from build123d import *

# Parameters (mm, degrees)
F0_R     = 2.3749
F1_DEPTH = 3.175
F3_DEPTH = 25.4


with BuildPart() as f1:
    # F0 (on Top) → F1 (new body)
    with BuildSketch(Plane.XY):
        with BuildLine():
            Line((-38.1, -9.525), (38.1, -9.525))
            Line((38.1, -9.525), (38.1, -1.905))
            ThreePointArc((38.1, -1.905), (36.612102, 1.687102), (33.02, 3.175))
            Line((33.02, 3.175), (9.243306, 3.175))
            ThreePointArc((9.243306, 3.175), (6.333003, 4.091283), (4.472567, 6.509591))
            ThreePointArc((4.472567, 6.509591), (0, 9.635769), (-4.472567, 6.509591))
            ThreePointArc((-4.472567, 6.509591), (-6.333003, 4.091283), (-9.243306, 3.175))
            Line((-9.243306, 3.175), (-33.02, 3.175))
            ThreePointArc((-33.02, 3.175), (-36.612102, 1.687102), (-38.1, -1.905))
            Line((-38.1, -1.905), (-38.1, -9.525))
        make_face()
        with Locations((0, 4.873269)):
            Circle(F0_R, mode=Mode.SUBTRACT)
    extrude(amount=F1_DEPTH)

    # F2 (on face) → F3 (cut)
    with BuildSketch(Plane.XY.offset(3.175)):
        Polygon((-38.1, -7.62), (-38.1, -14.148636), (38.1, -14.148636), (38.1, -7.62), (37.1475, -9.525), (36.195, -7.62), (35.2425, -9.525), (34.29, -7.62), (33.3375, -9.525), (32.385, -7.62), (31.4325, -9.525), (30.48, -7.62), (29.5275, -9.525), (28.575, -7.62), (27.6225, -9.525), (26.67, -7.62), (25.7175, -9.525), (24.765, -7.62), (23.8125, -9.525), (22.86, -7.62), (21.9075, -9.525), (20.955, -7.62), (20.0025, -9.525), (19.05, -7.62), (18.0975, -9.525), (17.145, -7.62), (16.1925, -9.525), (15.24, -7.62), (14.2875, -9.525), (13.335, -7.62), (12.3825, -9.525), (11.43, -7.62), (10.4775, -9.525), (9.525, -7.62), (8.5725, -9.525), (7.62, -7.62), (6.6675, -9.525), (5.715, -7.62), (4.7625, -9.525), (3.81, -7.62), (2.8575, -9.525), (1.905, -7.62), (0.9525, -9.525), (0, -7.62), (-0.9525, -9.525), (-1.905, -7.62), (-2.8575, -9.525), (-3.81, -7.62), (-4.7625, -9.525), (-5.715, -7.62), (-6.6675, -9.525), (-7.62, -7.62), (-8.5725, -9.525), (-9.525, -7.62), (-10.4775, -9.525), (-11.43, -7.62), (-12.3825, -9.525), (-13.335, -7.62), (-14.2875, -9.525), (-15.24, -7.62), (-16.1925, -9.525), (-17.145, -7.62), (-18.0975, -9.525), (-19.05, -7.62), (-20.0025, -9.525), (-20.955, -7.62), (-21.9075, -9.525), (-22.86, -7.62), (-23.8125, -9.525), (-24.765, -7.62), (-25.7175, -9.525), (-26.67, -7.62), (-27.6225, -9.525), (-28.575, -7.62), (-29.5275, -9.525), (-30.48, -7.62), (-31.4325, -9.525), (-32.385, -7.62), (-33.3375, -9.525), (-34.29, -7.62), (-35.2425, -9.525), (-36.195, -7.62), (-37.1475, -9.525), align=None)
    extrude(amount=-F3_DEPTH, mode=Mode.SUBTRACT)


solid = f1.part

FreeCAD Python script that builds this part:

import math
import FreeCAD as App
import Part
import Sketcher

V = App.Vector
Q = App.Units.Quantity

doc = App.newDocument("Part")
body = doc.addObject("PartDesign::Body", "Body")

sketch1 = body.newObject("Sketcher::SketchObject", "Sketch")
sketch1.AttachmentSupport = (doc.getObject("XY_Plane"), [""])
sketch1.MapMode = "FlatFace"
sketch1.addGeometry([
    Part.LineSegment(V(-38.1, -9.5, 0), V(38.1, -9.5, 0)),
    Part.LineSegment(V(38.1, -9.5, 0), V(38.1, -1.9, 0)),
    Part.ArcOfCircle(Part.Circle(V(33, -1.9, 0), V(0, 0, 1), 5.1), math.radians(0), math.radians(90)),
    Part.LineSegment(V(33, 3.2, 0), V(9.2, 3.2, 0)),
    Part.ArcOfCircle(Part.Circle(V(9.2, 8.3, 0), V(0, 0, 1), 5.1), math.radians(-160), math.radians(-90)),
    Part.ArcOfCircle(Part.Circle(V(0, 4.9, 0), V(0, 0, 1), 4.8), math.radians(20), math.radians(160)),
    Part.ArcOfCircle(Part.Circle(V(-9.2, 8.3, 0), V(0, 0, 1), 5.1), math.radians(-90), math.radians(-20)),
    Part.LineSegment(V(-9.2, 3.2, 0), V(-33, 3.2, 0)),
    Part.ArcOfCircle(Part.Circle(V(-33, -1.9, 0), V(0, 0, 1), 5.1), math.radians(90), math.radians(180)),
    Part.LineSegment(V(-38.1, -1.9, 0), V(-38.1, -9.5, 0)),
    Part.Circle(V(0, 4.9, 0), V(0, 0, 1), 2.4),
], False)
sketch1.addConstraint([
    Sketcher.Constraint("Coincident", 0, 2, 1, 1),
    Sketcher.Constraint("Tangent", 1, 2, 2, 1),
    Sketcher.Constraint("Tangent", 2, 2, 3, 1),
    Sketcher.Constraint("Tangent", 3, 2, 4, 2),
    Sketcher.Constraint("Tangent", 4, 1, 5, 1),
    Sketcher.Constraint("Tangent", 5, 2, 6, 2),
    Sketcher.Constraint("Tangent", 6, 1, 7, 1),
    Sketcher.Constraint("Tangent", 7, 2, 8, 1),
    Sketcher.Constraint("Tangent", 8, 2, 9, 1),
    Sketcher.Constraint("Coincident", 9, 2, 0, 1),
    Sketcher.Constraint("Horizontal", 0),
    Sketcher.Constraint("Vertical", 1),
    Sketcher.Constraint("Horizontal", 3),
    Sketcher.Constraint("Horizontal", 7),
    Sketcher.Constraint("Vertical", 9),
    Sketcher.Constraint("Coincident", 10, 3, 5, 3),
    Sketcher.Constraint("Equal", 2, 4),
    Sketcher.Constraint("Equal", 4, 6),
    Sketcher.Constraint("Equal", 6, 8),
    Sketcher.Constraint("Symmetric", 4, 3, 6, 3, -2),
    Sketcher.Constraint("Equal", 3, 7),
    Sketcher.Constraint("Radius", 2, Q("0.2000001 in")),
    Sketcher.Constraint("DistanceX", 0, 1, 0, 2, Q("3 in")),
    Sketcher.Constraint("Diameter", 10, Q("0.187 in")),
    Sketcher.Constraint("DistanceY", 1, 1, 1, 2, Q("0.3 in")),
    Sketcher.Constraint("Radius", 5, Q("0.1875 in")),
    Sketcher.Constraint("DistanceY", 2, 3, -1, 1, Q("0.0750001 in")),
    Sketcher.Constraint("DistanceX", 3, 2, 3, 1, 23.776694),
])
pad1 = body.newObject("PartDesign::Pad", "Pad")
pad1.Profile = sketch1
pad1.Length = Q("0.125 in")

sketch2 = body.newObject("Sketcher::SketchObject", "Sketch001")
sketch2.AttachmentSupport = (doc.getObject("XY_Plane"), [""])
sketch2.MapMode = "FlatFace"
sketch2.AttachmentOffset = App.Placement(V(0, 0, 0.125 * 25.4), App.Rotation())
sketch2.addGeometry([
    Part.LineSegment(V(-38.1, -7.6, 0), V(-38.1, -14.1, 0)),
    Part.LineSegment(V(-38.1, -14.1, 0), V(38.1, -14.1, 0)),
    Part.LineSegment(V(38.1, -14.1, 0), V(38.1, -7.6, 0)),
    Part.LineSegment(V(38.1, -7.6, 0), V(37.1, -9.5, 0)),
    Part.LineSegment(V(37.1, -9.5, 0), V(36.2, -7.6, 0)),
    Part.LineSegment(V(36.2, -7.6, 0), V(35.2, -9.5, 0)),
    Part.LineSegment(V(35.2, -9.5, 0), V(34.3, -7.6, 0)),
    Part.LineSegment(V(34.3, -7.6, 0), V(33.3, -9.5, 0)),
    Part.LineSegment(V(33.3, -9.5, 0), V(32.4, -7.6, 0)),
    Part.LineSegment(V(32.4, -7.6, 0), V(31.4, -9.5, 0)),
    Part.LineSegment(V(31.4, -9.5, 0), V(30.5, -7.6, 0)),
    Part.LineSegment(V(30.5, -7.6, 0), V(29.5, -9.5, 0)),
    Part.LineSegment(V(29.5, -9.5, 0), V(28.6, -7.6, 0)),
    Part.LineSegment(V(28.6, -7.6, 0), V(27.6, -9.5, 0)),
    Part.LineSegment(V(27.6, -9.5, 0), V(26.7, -7.6, 0)),
    Part.LineSegment(V(26.7, -7.6, 0), V(25.7, -9.5, 0)),
    Part.LineSegment(V(25.7, -9.5, 0), V(24.8, -7.6, 0)),
    Part.LineSegment(V(24.8, -7.6, 0), V(23.8, -9.5, 0)),
    Part.LineSegment(V(23.8, -9.5, 0), V(22.9, -7.6, 0)),
    Part.LineSegment(V(22.9, -7.6, 0), V(21.9, -9.5, 0)),
    Part.LineSegment(V(21.9, -9.5, 0), V(21, -7.6, 0)),
    Part.LineSegment(V(21, -7.6, 0), V(20, -9.5, 0)),
    Part.LineSegment(V(20, -9.5, 0), V(19.1, -7.6, 0)),
    Part.LineSegment(V(19.1, -7.6, 0), V(18.1, -9.5, 0)),
    Part.LineSegment(V(18.1, -9.5, 0), V(17.1, -7.6, 0)),
    Part.LineSegment(V(17.1, -7.6, 0), V(16.2, -9.5, 0)),
    Part.LineSegment(V(16.2, -9.5, 0), V(15.2, -7.6, 0)),
    Part.LineSegment(V(15.2, -7.6, 0), V(14.3, -9.5, 0)),
    Part.LineSegment(V(14.3, -9.5, 0), V(13.3, -7.6, 0)),
    Part.LineSegment(V(13.3, -7.6, 0), V(12.4, -9.5, 0)),
    Part.LineSegment(V(12.4, -9.5, 0), V(11.4, -7.6, 0)),
    Part.LineSegment(V(11.4, -7.6, 0), V(10.5, -9.5, 0)),
    Part.LineSegment(V(10.5, -9.5, 0), V(9.5, -7.6, 0)),
    Part.LineSegment(V(9.5, -7.6, 0), V(8.6, -9.5, 0)),
    Part.LineSegment(V(8.6, -9.5, 0), V(7.6, -7.6, 0)),
    Part.LineSegment(V(7.6, -7.6, 0), V(6.7, -9.5, 0)),
    Part.LineSegment(V(6.7, -9.5, 0), V(5.7, -7.6, 0)),
    Part.LineSegment(V(5.7, -7.6, 0), V(4.8, -9.5, 0)),
    Part.LineSegment(V(4.8, -9.5, 0), V(3.8, -7.6, 0)),
    Part.LineSegment(V(3.8, -7.6, 0), V(2.9, -9.5, 0)),
    Part.LineSegment(V(2.9, -9.5, 0), V(1.9, -7.6, 0)),
    Part.LineSegment(V(1.9, -7.6, 0), V(1, -9.5, 0)),
    Part.LineSegment(V(1, -9.5, 0), V(0, -7.6, 0)),
    Part.LineSegment(V(0, -7.6, 0), V(-1, -9.5, 0)),
    Part.LineSegment(V(-1, -9.5, 0), V(-1.9, -7.6, 0)),
    Part.LineSegment(V(-1.9, -7.6, 0), V(-2.9, -9.5, 0)),
    Part.LineSegment(V(-2.9, -9.5, 0), V(-3.8, -7.6, 0)),
    Part.LineSegment(V(-3.8, -7.6, 0), V(-4.8, -9.5, 0)),
    Part.LineSegment(V(-4.8, -9.5, 0), V(-5.7, -7.6, 0)),
    Part.LineSegment(V(-5.7, -7.6, 0), V(-6.7, -9.5, 0)),
    Part.LineSegment(V(-6.7, -9.5, 0), V(-7.6, -7.6, 0)),
    Part.LineSegment(V(-7.6, -7.6, 0), V(-8.6, -9.5, 0)),
    Part.LineSegment(V(-8.6, -9.5, 0), V(-9.5, -7.6, 0)),
    Part.LineSegment(V(-9.5, -7.6, 0), V(-10.5, -9.5, 0)),
    Part.LineSegment(V(-10.5, -9.5, 0), V(-11.4, -7.6, 0)),
    Part.LineSegment(V(-11.4, -7.6, 0), V(-12.4, -9.5, 0)),
    Part.LineSegment(V(-12.4, -9.5, 0), V(-13.3, -7.6, 0)),
    Part.LineSegment(V(-13.3, -7.6, 0), V(-14.3, -9.5, 0)),
    Part.LineSegment(V(-14.3, -9.5, 0), V(-15.2, -7.6, 0)),
    Part.LineSegment(V(-15.2, -7.6, 0), V(-16.2, -9.5, 0)),
    Part.LineSegment(V(-16.2, -9.5, 0), V(-17.1, -7.6, 0)),
    Part.LineSegment(V(-17.1, -7.6, 0), V(-18.1, -9.5, 0)),
    Part.LineSegment(V(-18.1, -9.5, 0), V(-19.1, -7.6, 0)),
    Part.LineSegment(V(-19.1, -7.6, 0), V(-20, -9.5, 0)),
    Part.LineSegment(V(-20, -9.5, 0), V(-21, -7.6, 0)),
    Part.LineSegment(V(-21, -7.6, 0), V(-21.9, -9.5, 0)),
    Part.LineSegment(V(-21.9, -9.5, 0), V(-22.9, -7.6, 0)),
    Part.LineSegment(V(-22.9, -7.6, 0), V(-23.8, -9.5, 0)),
    Part.LineSegment(V(-23.8, -9.5, 0), V(-24.8, -7.6, 0)),
    Part.LineSegment(V(-24.8, -7.6, 0), V(-25.7, -9.5, 0)),
    Part.LineSegment(V(-25.7, -9.5, 0), V(-26.7, -7.6, 0)),
    Part.LineSegment(V(-26.7, -7.6, 0), V(-27.6, -9.5, 0)),
    Part.LineSegment(V(-27.6, -9.5, 0), V(-28.6, -7.6, 0)),
    Part.LineSegment(V(-28.6, -7.6, 0), V(-29.5, -9.5, 0)),
    Part.LineSegment(V(-29.5, -9.5, 0), V(-30.5, -7.6, 0)),
    Part.LineSegment(V(-30.5, -7.6, 0), V(-31.4, -9.5, 0)),
    Part.LineSegment(V(-31.4, -9.5, 0), V(-32.4, -7.6, 0)),
    Part.LineSegment(V(-32.4, -7.6, 0), V(-33.3, -9.5, 0)),
    Part.LineSegment(V(-33.3, -9.5, 0), V(-34.3, -7.6, 0)),
    Part.LineSegment(V(-34.3, -7.6, 0), V(-35.2, -9.5, 0)),
    Part.LineSegment(V(-35.2, -9.5, 0), V(-36.2, -7.6, 0)),
    Part.LineSegment(V(-36.2, -7.6, 0), V(-37.1, -9.5, 0)),
    Part.LineSegment(V(-37.1, -9.5, 0), V(-38.1, -7.6, 0)),
], False)
sketch2.addConstraint([
    Sketcher.Constraint("Coincident", 0, 2, 1, 1),
    Sketcher.Constraint("Coincident", 1, 2, 2, 1),
    Sketcher.Constraint("Coincident", 2, 2, 3, 1),
    Sketcher.Constraint("Coincident", 3, 2, 4, 1),
    Sketcher.Constraint("Coincident", 4, 2, 5, 1),
    Sketcher.Constraint("Coincident", 5, 2, 6, 1),
    Sketcher.Constraint("Coincident", 6, 2, 7, 1),
    Sketcher.Constraint("Coincident", 7, 2, 8, 1),
    Sketcher.Constraint("Coincident", 8, 2, 9, 1),
    Sketcher.Constraint("Coincident", 9, 2, 10, 1),
    Sketcher.Constraint("Coincident", 10, 2, 11, 1),
    Sketcher.Constraint("Coincident", 11, 2, 12, 1),
    Sketcher.Constraint("Coincident", 12, 2, 13, 1),
    Sketcher.Constraint("Coincident", 13, 2, 14, 1),
    Sketcher.Constraint("Coincident", 14, 2, 15, 1),
    Sketcher.Constraint("Coincident", 15, 2, 16, 1),
    Sketcher.Constraint("Coincident", 16, 2, 17, 1),
    Sketcher.Constraint("Coincident", 17, 2, 18, 1),
    Sketcher.Constraint("Coincident", 18, 2, 19, 1),
    Sketcher.Constraint("Coincident", 19, 2, 20, 1),
    Sketcher.Constraint("Coincident", 20, 2, 21, 1),
    Sketcher.Constraint("Coincident", 21, 2, 22, 1),
    Sketcher.Constraint("Coincident", 22, 2, 23, 1),
    Sketcher.Constraint("Coincident", 23, 2, 24, 1),
    Sketcher.Constraint("Coincident", 24, 2, 25, 1),
    Sketcher.Constraint("Coincident", 25, 2, 26, 1),
    Sketcher.Constraint("Coincident", 26, 2, 27, 1),
    Sketcher.Constraint("Coincident", 27, 2, 28, 1),
    Sketcher.Constraint("Coincident", 28, 2, 29, 1),
    Sketcher.Constraint("Coincident", 29, 2, 30, 1),
    Sketcher.Constraint("Coincident", 30, 2, 31, 1),
    Sketcher.Constraint("Coincident", 31, 2, 32, 1),
    Sketcher.Constraint("Coincident", 32, 2, 33, 1),
    Sketcher.Constraint("Coincident", 33, 2, 34, 1),
    Sketcher.Constraint("Coincident", 34, 2, 35, 1),
    Sketcher.Constraint("Coincident", 35, 2, 36, 1),
    Sketcher.Constraint("Coincident", 36, 2, 37, 1),
    Sketcher.Constraint("Coincident", 37, 2, 38, 1),
    Sketcher.Constraint("Coincident", 38, 2, 39, 1),
    Sketcher.Constraint("Coincident", 39, 2, 40, 1),
    Sketcher.Constraint("Coincident", 40, 2, 41, 1),
    Sketcher.Constraint("Coincident", 41, 2, 42, 1),
    Sketcher.Constraint("Coincident", 42, 2, 43, 1),
    Sketcher.Constraint("Coincident", 43, 2, 44, 1),
    Sketcher.Constraint("Coincident", 44, 2, 45, 1),
    Sketcher.Constraint("Coincident", 45, 2, 46, 1),
    Sketcher.Constraint("Coincident", 46, 2, 47, 1),
    Sketcher.Constraint("Coincident", 47, 2, 48, 1),
    Sketcher.Constraint("Coincident", 48, 2, 49, 1),
    Sketcher.Constraint("Coincident", 49, 2, 50, 1),
    Sketcher.Constraint("Coincident", 50, 2, 51, 1),
    Sketcher.Constraint("Coincident", 51, 2, 52, 1),
    Sketcher.Constraint("Coincident", 52, 2, 53, 1),
    Sketcher.Constraint("Coincident", 53, 2, 54, 1),
    Sketcher.Constraint("Coincident", 54, 2, 55, 1),
    Sketcher.Constraint("Coincident", 55, 2, 56, 1),
    Sketcher.Constraint("Coincident", 56, 2, 57, 1),
    Sketcher.Constraint("Coincident", 57, 2, 58, 1),
    Sketcher.Constraint("Coincident", 58, 2, 59, 1),
    Sketcher.Constraint("Coincident", 59, 2, 60, 1),
    Sketcher.Constraint("Coincident", 60, 2, 61, 1),
    Sketcher.Constraint("Coincident", 61, 2, 62, 1),
    Sketcher.Constraint("Coincident", 62, 2, 63, 1),
    Sketcher.Constraint("Coincident", 63, 2, 64, 1),
    Sketcher.Constraint("Coincident", 64, 2, 65, 1),
    Sketcher.Constraint("Coincident", 65, 2, 66, 1),
    Sketcher.Constraint("Coincident", 66, 2, 67, 1),
    Sketcher.Constraint("Coincident", 67, 2, 68, 1),
    Sketcher.Constraint("Coincident", 68, 2, 69, 1),
    Sketcher.Constraint("Coincident", 69, 2, 70, 1),
    Sketcher.Constraint("Coincident", 70, 2, 71, 1),
    Sketcher.Constraint("Coincident", 71, 2, 72, 1),
    Sketcher.Constraint("Coincident", 72, 2, 73, 1),
    Sketcher.Constraint("Coincident", 73, 2, 74, 1),
    Sketcher.Constraint("Coincident", 74, 2, 75, 1),
    Sketcher.Constraint("Coincident", 75, 2, 76, 1),
    Sketcher.Constraint("Coincident", 76, 2, 77, 1),
    Sketcher.Constraint("Coincident", 77, 2, 78, 1),
    Sketcher.Constraint("Coincident", 78, 2, 79, 1),
    Sketcher.Constraint("Coincident", 79, 2, 80, 1),
    Sketcher.Constraint("Coincident", 80, 2, 81, 1),
    Sketcher.Constraint("Coincident", 81, 2, 82, 1),
    Sketcher.Constraint("Coincident", 82, 2, 0, 1),
    Sketcher.Constraint("Vertical", 0),
    Sketcher.Constraint("Horizontal", 1),
    Sketcher.Constraint("Vertical", 2),
    Sketcher.Constraint("Symmetric", 41, 2, 43, 2, -2),
    Sketcher.Constraint("Symmetric", 40, 2, 44, 2, -2),
    Sketcher.Constraint("Symmetric", 39, 2, 45, 2, -2),
    Sketcher.Constraint("Symmetric", 38, 2, 46, 2, -2),
    Sketcher.Constraint("Symmetric", 37, 2, 47, 2, -2),
    Sketcher.Constraint("Symmetric", 36, 2, 48, 2, -2),
    Sketcher.Constraint("Symmetric", 35, 2, 49, 2, -2),
    Sketcher.Constraint("Symmetric", 34, 2, 50, 2, -2),
    Sketcher.Constraint("Symmetric", 33, 2, 51, 2, -2),
    Sketcher.Constraint("Symmetric", 32, 2, 52, 2, -2),
    Sketcher.Constraint("Symmetric", 31, 2, 53, 2, -2),
    Sketcher.Constraint("Symmetric", 30, 2, 54, 2, -2),
    Sketcher.Constraint("Symmetric", 29, 2, 55, 2, -2),
    Sketcher.Constraint("Symmetric", 28, 2, 56, 2, -2),
    Sketcher.Constraint("Symmetric", 27, 2, 57, 2, -2),
    Sketcher.Constraint("Symmetric", 26, 2, 58, 2, -2),
    Sketcher.Constraint("Symmetric", 25, 2, 59, 2, -2),
    Sketcher.Constraint("Symmetric", 24, 2, 60, 2, -2),
    Sketcher.Constraint("Symmetric", 23, 2, 61, 2, -2),
    Sketcher.Constraint("Symmetric", 22, 2, 62, 2, -2),
    Sketcher.Constraint("Symmetric", 21, 2, 63, 2, -2),
    Sketcher.Constraint("Symmetric", 20, 2, 64, 2, -2),
    Sketcher.Constraint("Symmetric", 19, 2, 65, 2, -2),
    Sketcher.Constraint("Symmetric", 18, 2, 66, 2, -2),
    Sketcher.Constraint("Symmetric", 17, 2, 67, 2, -2),
    Sketcher.Constraint("Symmetric", 16, 2, 68, 2, -2),
    Sketcher.Constraint("Symmetric", 15, 2, 69, 2, -2),
    Sketcher.Constraint("Symmetric", 14, 2, 70, 2, -2),
    Sketcher.Constraint("Symmetric", 13, 2, 71, 2, -2),
    Sketcher.Constraint("Symmetric", 12, 2, 72, 2, -2),
    Sketcher.Constraint("Symmetric", 11, 2, 73, 2, -2),
    Sketcher.Constraint("Symmetric", 10, 2, 74, 2, -2),
    Sketcher.Constraint("Symmetric", 9, 2, 75, 2, -2),
    Sketcher.Constraint("Symmetric", 8, 2, 76, 2, -2),
    Sketcher.Constraint("Symmetric", 7, 2, 77, 2, -2),
    Sketcher.Constraint("Symmetric", 6, 2, 78, 2, -2),
    Sketcher.Constraint("Symmetric", 5, 2, 79, 2, -2),
    Sketcher.Constraint("Symmetric", 4, 2, 80, 2, -2),
    Sketcher.Constraint("Symmetric", 3, 2, 81, 2, -2),
    Sketcher.Constraint("Symmetric", 2, 2, 82, 2, -2),
    Sketcher.Constraint("PointOnObject", 42, 2, -2),
    Sketcher.Constraint("Parallel", 3, 5),
    Sketcher.Constraint("Parallel", 4, 6),
    Sketcher.Constraint("Parallel", 5, 7),
    Sketcher.Constraint("Parallel", 6, 8),
    Sketcher.Constraint("Parallel", 7, 9),
    Sketcher.Constraint("Parallel", 8, 10),
    Sketcher.Constraint("Parallel", 9, 11),
    Sketcher.Constraint("Parallel", 10, 12),
    Sketcher.Constraint("Parallel", 11, 13),
    Sketcher.Constraint("Parallel", 12, 14),
    Sketcher.Constraint("Parallel", 13, 15),
    Sketcher.Constraint("Parallel", 14, 16),
    Sketcher.Constraint("Parallel", 15, 17),
    Sketcher.Constraint("Parallel", 16, 18),
    Sketcher.Constraint("Parallel", 17, 19),
    Sketcher.Constraint("Parallel", 18, 20),
    Sketcher.Constraint("Parallel", 19, 21),
    Sketcher.Constraint("Parallel", 20, 22),
    Sketcher.Constraint("Parallel", 21, 23),
    Sketcher.Constraint("Parallel", 22, 24),
    Sketcher.Constraint("Parallel", 23, 25),
    Sketcher.Constraint("Parallel", 24, 26),
    Sketcher.Constraint("Parallel", 25, 27),
    Sketcher.Constraint("Parallel", 26, 28),
    Sketcher.Constraint("Parallel", 27, 29),
    Sketcher.Constraint("Parallel", 28, 30),
    Sketcher.Constraint("Parallel", 29, 31),
    Sketcher.Constraint("Parallel", 30, 32),
    Sketcher.Constraint("Parallel", 31, 33),
    Sketcher.Constraint("Parallel", 32, 34),
    Sketcher.Constraint("Parallel", 33, 35),
    Sketcher.Constraint("Parallel", 34, 36),
    Sketcher.Constraint("Parallel", 35, 37),
    Sketcher.Constraint("Parallel", 36, 38),
    Sketcher.Constraint("Parallel", 37, 39),
    Sketcher.Constraint("Parallel", 38, 40),
    Sketcher.Constraint("Parallel", 39, 41),
    Sketcher.Constraint("Parallel", 40, 42),
    Sketcher.Constraint("Parallel", 41, 43),
    Sketcher.Constraint("Horizontal", 2, 2, 4, 2),
    Sketcher.Constraint("Horizontal", 3, 2, 5, 2),
    Sketcher.Constraint("Horizontal", 4, 2, 6, 2),
    Sketcher.Constraint("Horizontal", 5, 2, 7, 2),
    Sketcher.Constraint("Horizontal", 6, 2, 8, 2),
    Sketcher.Constraint("Horizontal", 7, 2, 9, 2),
    Sketcher.Constraint("Horizontal", 8, 2, 10, 2),
    Sketcher.Constraint("Horizontal", 9, 2, 11, 2),
    Sketcher.Constraint("Horizontal", 10, 2, 12, 2),
    Sketcher.Constraint("Horizontal", 11, 2, 13, 2),
    Sketcher.Constraint("Horizontal", 12, 2, 14, 2),
    Sketcher.Constraint("Horizontal", 13, 2, 15, 2),
    Sketcher.Constraint("Horizontal", 14, 2, 16, 2),
    Sketcher.Constraint("Horizontal", 15, 2, 17, 2),
    Sketcher.Constraint("Horizontal", 16, 2, 18, 2),
    Sketcher.Constraint("Horizontal", 17, 2, 19, 2),
    Sketcher.Constraint("Horizontal", 18, 2, 20, 2),
    Sketcher.Constraint("Horizontal", 19, 2, 21, 2),
    Sketcher.Constraint("Horizontal", 20, 2, 22, 2),
    Sketcher.Constraint("Horizontal", 21, 2, 23, 2),
    Sketcher.Constraint("Horizontal", 22, 2, 24, 2),
    Sketcher.Constraint("Horizontal", 23, 2, 25, 2),
    Sketcher.Constraint("Horizontal", 24, 2, 26, 2),
    Sketcher.Constraint("Horizontal", 25, 2, 27, 2),
    Sketcher.Constraint("Horizontal", 26, 2, 28, 2),
    Sketcher.Constraint("Horizontal", 27, 2, 29, 2),
    Sketcher.Constraint("Horizontal", 28, 2, 30, 2),
    Sketcher.Constraint("Horizontal", 29, 2, 31, 2),
    Sketcher.Constraint("Horizontal", 30, 2, 32, 2),
    Sketcher.Constraint("Horizontal", 31, 2, 33, 2),
    Sketcher.Constraint("Horizontal", 32, 2, 34, 2),
    Sketcher.Constraint("Horizontal", 33, 2, 35, 2),
    Sketcher.Constraint("Horizontal", 34, 2, 36, 2),
    Sketcher.Constraint("Horizontal", 35, 2, 37, 2),
    Sketcher.Constraint("Horizontal", 36, 2, 38, 2),
    Sketcher.Constraint("Horizontal", 37, 2, 39, 2),
    Sketcher.Constraint("Horizontal", 38, 2, 40, 2),
    Sketcher.Constraint("Horizontal", 39, 2, 41, 2),
    Sketcher.Constraint("Horizontal", 40, 2, 42, 2),
    Sketcher.Constraint("DistanceX", 1, 1, 1, 2, Q("3 in")),
    Sketcher.Constraint("DistanceY", 2, 2, -1, 1, Q("0.3 in")),
    Sketcher.Constraint("DistanceY", 3, 2, -1, 1, Q("0.375 in")),
    Sketcher.Constraint("DistanceY", 0, 2, 0, 1, 6.528636),
])
pocket1 = body.newObject("PartDesign::Pocket", "Pocket")
pocket1.Profile = sketch2
pocket1.Length = Q("1 in")

doc.recompute()
